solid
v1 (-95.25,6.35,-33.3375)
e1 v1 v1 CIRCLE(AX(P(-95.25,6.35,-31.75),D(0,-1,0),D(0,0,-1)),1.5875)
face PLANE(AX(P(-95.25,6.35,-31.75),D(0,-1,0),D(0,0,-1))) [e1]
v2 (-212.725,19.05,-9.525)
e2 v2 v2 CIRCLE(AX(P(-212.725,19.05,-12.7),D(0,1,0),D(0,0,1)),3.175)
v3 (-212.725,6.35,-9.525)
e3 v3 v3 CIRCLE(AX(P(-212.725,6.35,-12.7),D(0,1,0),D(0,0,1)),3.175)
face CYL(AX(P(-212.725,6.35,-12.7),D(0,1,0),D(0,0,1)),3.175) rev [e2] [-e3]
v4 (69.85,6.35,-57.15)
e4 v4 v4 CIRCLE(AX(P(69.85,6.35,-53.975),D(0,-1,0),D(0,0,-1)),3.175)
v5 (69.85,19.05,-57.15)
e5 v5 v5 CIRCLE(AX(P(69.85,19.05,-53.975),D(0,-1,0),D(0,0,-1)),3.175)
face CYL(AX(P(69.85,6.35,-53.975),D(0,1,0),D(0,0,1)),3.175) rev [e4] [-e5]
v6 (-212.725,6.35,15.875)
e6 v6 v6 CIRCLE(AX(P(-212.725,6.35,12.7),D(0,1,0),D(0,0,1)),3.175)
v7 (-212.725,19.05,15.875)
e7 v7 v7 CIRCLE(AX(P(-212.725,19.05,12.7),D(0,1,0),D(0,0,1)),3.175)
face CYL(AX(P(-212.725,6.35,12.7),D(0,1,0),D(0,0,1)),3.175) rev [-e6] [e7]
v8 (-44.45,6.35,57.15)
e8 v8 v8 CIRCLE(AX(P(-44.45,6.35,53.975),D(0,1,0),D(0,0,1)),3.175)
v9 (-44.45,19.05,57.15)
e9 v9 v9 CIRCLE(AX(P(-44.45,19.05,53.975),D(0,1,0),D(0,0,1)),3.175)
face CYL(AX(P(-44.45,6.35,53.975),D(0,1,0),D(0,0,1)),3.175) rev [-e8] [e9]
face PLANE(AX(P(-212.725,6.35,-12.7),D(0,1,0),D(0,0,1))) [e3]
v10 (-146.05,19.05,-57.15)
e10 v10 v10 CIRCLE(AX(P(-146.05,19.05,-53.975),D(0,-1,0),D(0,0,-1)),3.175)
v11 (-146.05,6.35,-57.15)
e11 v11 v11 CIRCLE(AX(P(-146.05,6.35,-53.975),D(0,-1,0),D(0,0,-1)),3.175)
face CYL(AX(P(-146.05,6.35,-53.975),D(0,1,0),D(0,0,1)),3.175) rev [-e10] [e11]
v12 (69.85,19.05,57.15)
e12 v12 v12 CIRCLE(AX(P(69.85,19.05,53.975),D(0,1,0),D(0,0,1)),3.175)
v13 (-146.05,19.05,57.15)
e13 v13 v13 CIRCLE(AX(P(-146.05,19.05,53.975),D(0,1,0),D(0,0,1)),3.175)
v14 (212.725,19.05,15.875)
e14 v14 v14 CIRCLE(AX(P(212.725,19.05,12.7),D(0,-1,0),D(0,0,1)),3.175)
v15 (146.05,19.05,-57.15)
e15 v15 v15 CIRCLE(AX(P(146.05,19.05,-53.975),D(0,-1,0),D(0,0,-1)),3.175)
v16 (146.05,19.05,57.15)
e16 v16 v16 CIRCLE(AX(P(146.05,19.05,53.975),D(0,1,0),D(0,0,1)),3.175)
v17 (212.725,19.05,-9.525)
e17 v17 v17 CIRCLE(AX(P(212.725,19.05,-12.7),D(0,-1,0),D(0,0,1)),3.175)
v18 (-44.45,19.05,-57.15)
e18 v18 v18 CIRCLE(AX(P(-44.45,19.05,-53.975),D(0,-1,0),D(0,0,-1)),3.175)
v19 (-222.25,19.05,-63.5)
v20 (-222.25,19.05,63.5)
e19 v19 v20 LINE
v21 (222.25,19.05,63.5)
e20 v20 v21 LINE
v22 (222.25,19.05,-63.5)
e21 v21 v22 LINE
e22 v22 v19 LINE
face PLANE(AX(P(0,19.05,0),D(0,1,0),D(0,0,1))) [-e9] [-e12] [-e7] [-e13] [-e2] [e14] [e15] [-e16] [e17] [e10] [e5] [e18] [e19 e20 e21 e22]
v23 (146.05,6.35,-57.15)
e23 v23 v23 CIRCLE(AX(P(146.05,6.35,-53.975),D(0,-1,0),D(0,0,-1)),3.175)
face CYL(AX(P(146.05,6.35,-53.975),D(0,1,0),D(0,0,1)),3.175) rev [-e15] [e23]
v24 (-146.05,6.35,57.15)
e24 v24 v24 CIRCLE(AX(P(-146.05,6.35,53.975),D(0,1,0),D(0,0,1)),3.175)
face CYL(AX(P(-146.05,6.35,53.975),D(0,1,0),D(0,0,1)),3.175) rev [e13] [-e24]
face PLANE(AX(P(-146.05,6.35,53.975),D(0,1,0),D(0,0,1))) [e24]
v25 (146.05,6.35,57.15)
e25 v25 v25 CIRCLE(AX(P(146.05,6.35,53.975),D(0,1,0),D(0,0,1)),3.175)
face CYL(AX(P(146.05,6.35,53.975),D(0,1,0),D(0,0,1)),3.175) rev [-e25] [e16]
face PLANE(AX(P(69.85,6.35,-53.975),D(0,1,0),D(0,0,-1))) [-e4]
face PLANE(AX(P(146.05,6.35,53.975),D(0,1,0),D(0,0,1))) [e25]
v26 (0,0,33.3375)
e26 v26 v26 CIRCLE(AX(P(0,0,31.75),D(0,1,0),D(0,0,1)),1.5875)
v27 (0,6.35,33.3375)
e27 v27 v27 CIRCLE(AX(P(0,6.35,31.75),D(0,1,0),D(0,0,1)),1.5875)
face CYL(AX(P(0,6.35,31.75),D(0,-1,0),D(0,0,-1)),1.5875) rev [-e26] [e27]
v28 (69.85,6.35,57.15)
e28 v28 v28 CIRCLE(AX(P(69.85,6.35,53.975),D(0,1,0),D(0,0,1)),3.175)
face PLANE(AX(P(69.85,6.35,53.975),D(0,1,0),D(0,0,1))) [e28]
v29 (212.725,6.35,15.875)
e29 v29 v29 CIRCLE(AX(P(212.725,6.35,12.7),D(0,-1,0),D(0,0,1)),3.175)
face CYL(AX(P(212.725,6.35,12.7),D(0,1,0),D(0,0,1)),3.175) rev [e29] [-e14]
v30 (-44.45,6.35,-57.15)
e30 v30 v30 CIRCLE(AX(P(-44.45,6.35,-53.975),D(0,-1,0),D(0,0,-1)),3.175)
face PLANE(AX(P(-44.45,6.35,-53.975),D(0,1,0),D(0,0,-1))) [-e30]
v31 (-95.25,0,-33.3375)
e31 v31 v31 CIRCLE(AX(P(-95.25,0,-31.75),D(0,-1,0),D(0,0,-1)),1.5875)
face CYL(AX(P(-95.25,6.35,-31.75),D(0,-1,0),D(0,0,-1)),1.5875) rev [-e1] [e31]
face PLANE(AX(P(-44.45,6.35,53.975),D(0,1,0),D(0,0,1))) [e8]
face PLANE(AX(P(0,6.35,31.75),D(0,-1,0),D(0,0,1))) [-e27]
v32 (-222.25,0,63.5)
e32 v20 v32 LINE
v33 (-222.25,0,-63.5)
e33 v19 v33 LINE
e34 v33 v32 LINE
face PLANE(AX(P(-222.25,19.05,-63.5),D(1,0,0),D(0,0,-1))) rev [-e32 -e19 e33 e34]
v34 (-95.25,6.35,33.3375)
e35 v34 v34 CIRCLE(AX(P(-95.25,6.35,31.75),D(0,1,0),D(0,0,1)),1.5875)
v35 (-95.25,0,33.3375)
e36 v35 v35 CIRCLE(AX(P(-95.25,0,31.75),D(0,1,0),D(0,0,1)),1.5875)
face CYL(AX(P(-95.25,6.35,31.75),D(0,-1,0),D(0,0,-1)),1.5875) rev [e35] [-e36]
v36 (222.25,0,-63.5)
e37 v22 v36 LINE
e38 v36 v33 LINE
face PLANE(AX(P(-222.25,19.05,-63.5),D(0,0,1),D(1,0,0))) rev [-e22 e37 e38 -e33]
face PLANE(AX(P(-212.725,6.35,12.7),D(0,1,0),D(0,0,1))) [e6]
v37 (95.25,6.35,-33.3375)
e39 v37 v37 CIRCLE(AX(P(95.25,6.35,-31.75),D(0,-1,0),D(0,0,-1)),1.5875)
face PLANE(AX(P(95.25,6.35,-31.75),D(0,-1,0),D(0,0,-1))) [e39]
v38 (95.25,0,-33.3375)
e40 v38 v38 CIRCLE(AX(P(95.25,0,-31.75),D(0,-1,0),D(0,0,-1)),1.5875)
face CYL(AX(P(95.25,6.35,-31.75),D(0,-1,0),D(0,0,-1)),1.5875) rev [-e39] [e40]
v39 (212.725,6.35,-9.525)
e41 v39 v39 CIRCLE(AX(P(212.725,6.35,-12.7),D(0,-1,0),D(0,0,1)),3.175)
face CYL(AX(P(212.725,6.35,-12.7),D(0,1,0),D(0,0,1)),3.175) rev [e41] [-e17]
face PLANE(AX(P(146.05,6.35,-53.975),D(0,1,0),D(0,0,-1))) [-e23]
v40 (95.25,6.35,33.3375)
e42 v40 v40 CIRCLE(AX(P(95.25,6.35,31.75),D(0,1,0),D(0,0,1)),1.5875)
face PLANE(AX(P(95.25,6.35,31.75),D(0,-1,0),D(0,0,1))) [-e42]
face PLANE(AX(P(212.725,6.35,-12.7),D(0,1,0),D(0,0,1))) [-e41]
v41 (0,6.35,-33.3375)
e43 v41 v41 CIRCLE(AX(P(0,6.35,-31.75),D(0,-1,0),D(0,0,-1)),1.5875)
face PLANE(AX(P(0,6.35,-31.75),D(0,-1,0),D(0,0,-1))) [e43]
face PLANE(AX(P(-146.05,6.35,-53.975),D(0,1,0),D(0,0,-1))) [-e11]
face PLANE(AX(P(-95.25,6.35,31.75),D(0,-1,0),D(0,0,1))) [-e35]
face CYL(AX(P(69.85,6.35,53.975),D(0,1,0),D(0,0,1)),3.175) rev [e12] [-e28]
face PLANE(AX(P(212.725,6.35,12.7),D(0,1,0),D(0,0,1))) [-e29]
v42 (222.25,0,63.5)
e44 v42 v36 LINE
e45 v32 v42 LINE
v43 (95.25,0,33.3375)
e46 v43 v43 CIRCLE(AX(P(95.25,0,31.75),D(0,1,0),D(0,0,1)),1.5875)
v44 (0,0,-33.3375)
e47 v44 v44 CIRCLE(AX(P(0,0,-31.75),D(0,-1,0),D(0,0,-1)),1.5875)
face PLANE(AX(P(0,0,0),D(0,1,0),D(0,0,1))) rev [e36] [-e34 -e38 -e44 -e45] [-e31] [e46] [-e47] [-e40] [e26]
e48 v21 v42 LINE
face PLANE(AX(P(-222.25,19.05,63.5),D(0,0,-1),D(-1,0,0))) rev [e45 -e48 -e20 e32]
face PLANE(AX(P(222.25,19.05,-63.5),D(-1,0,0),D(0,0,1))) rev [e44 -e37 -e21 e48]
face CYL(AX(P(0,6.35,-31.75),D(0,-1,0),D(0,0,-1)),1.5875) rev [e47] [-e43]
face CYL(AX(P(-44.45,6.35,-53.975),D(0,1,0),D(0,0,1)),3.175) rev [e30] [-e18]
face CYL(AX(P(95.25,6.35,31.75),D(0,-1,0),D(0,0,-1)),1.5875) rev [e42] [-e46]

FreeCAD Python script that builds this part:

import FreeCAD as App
import Part
import Sketcher
Q = App.Units.Quantity


def add_polygon(sketch, points):
    """Adds a closed chain of lines whose ends are joined by coincident constraints."""
    first, n = sketch.GeometryCount, len(points)
    for a, b in zip(points, points[1:] + points[:1]):
        sketch.addGeometry(Part.LineSegment(App.Vector(*a, 0), App.Vector(*b, 0)), False)
    for i in range(n):
        sketch.addConstraint(Sketcher.Constraint("Coincident", first + i, 2, first + (i + 1) % n, 1))

doc = App.newDocument("Part")
body = doc.addObject("PartDesign::Body", "Body")

sketch1 = doc.addObject("Sketcher::SketchObject", "Sketch")
body.addObject(sketch1)
sketch1.AttachmentSupport = (doc.XZ_Plane, [""])
sketch1.MapMode = "FlatFace"
add_polygon(sketch1, [(-222, -64), (-222, 64), (222, 64), (222, -64)])
sketch1.addConstraint([
    Sketcher.Constraint("Vertical", 0),
    Sketcher.Constraint("Horizontal", 1),
    Sketcher.Constraint("Vertical", 2),
    Sketcher.Constraint("Horizontal", 3),
    Sketcher.Constraint("Symmetric", 0, 2, 2, 2, -1, 1),
    Sketcher.Constraint("DistanceY", 0, 1, 0, 2, Q("5 in")),
    Sketcher.Constraint("DistanceX", 1, 1, 1, 2, Q("17.5 in")),
])
pad1 = doc.addObject("PartDesign::Pad", "Pad")
body.addObject(pad1)
pad1.Profile = sketch1
pad1.Length = Q("0.75 in")
pad1.Reversed = True

sketch2 = doc.addObject("Sketcher::SketchObject", "Sketch001")
body.addObject(sketch2)
sketch2.AttachmentSupport = (doc.XZ_Plane, [""])
sketch2.MapMode = "FlatFace"
sketch2.AttachmentOffset = App.Placement(App.Vector(0, 0, -0.75 * 25.4), App.Rotation())
sketch2.addGeometry([
    Part.Circle(App.Vector(-146.1, 54, 0), App.Vector(0, 0, 1), 3.2),
    Part.Circle(App.Vector(-44.5, 54, 0), App.Vector(0, 0, 1), 3.2),
    Part.Circle(App.Vector(69.8, 54, 0), App.Vector(0, 0, 1), 3.2),
    Part.Circle(App.Vector(146.1, 54, 0), App.Vector(0, 0, 1), 3.2),
], False)
sketch2.addConstraint([
    Sketcher.Constraint("Equal", 0, 1),
    Sketcher.Constraint("Equal", 1, 2),
    Sketcher.Constraint("Equal", 2, 3),
    Sketcher.Constraint("Symmetric", 0, 3, 3, 3, -2),
    Sketcher.Constraint("Horizontal", 0, 3, 1, 3),
    Sketcher.Constraint("Horizontal", 1, 3, 2, 3),
    Sketcher.Constraint("Diameter", 0, Q("0.25 in")),
    Sketcher.Constraint("DistanceX", 0, 3, 1, 3, Q("4 in")),
    Sketcher.Constraint("DistanceX", 2, 3, 3, 3, Q("3 in")),
    Sketcher.Constraint("DistanceX", 1, 3, 2, 3, Q("4.5 in")),
    Sketcher.Constraint("DistanceY", -1, 1, 0, 3, Q("2.125 in")),
])
pocket1 = doc.addObject("PartDesign::Pocket", "Pocket")
body.addObject(pocket1)
pocket1.Profile = sketch2
pocket1.Length = Q("0.5 in")
pocket1.Reversed = True
doc.recompute()

mirrored = doc.addObject("PartDesign::Mirrored", "Mirrored")
body.addObject(mirrored)
mirrored.Originals = [pocket1]
mirrored.MirrorPlane = (doc.XY_Plane, [""])
body.Tip = mirrored

sketch3 = doc.addObject("Sketcher::SketchObject", "Sketch002")
body.addObject(sketch3)
sketch3.AttachmentSupport = (doc.XZ_Plane, [""])
sketch3.MapMode = "FlatFace"
sketch3.AttachmentOffset = App.Placement(App.Vector(0, 0, -0.75 * 25.4), App.Rotation())
sketch3.addGeometry([
    Part.Circle(App.Vector(-212.7, -12.7, 0), App.Vector(0, 0, 1), 3.2),
    Part.Circle(App.Vector(-212.7, 12.7, 0), App.Vector(0, 0, 1), 3.2),
], False)
sketch3.addConstraint([
    Sketcher.Constraint("Equal", 0, 1),
    Sketcher.Constraint("Symmetric", 0, 3, 1, 3, -1),
    Sketcher.Constraint("Diameter", 0, Q("0.25 in")),
    Sketcher.Constraint("DistanceY", 0, 3, 1, 3, Q("1 in")),
    Sketcher.Constraint("DistanceX", 0, 3, -1, 1, Q("8.375 in")),
])
pocket2 = doc.addObject("PartDesign::Pocket", "Pocket001")
body.addObject(pocket2)
pocket2.Profile = sketch3
pocket2.Length = Q("0.5 in")
pocket2.Reversed = True
doc.recompute()

mirrored2 = doc.addObject("PartDesign::Mirrored", "Mirrored001")
body.addObject(mirrored2)
mirrored2.Originals = [pocket2]
mirrored2.MirrorPlane = (doc.YZ_Plane, [""])
body.Tip = mirrored2

sketch4 = doc.addObject("Sketcher::SketchObject", "Sketch003")
body.addObject(sketch4)
sketch4.AttachmentSupport = (doc.XZ_Plane, [""])
sketch4.MapMode = "FlatFace"
sketch4.addGeometry([
    Part.Circle(App.Vector(-95.2, -31.8, 0), App.Vector(0, 0, 1), 1.6),
    Part.Circle(App.Vector(0, -31.8, 0), App.Vector(0, 0, 1), 1.6),
    Part.Circle(App.Vector(95.2, -31.8, 0), App.Vector(0, 0, 1), 1.6),
], False)
sketch4.addConstraint([
    Sketcher.Constraint("Equal", 0, 1),
    Sketcher.Constraint("Equal", 1, 2),
    Sketcher.Constraint("Symmetric", 0, 3, 2, 3, -2),
    Sketcher.Constraint("PointOnObject", 1, 3, -2),
    Sketcher.Constraint("Horizontal", 0, 3, 1, 3),
    Sketcher.Constraint("Diameter", 0, Q("0.125 in")),
    Sketcher.Constraint("DistanceX", 0, 3, 2, 3, Q("7.5 in")),
    Sketcher.Constraint("DistanceY", 0, 3, -1, 1, Q("1.25 in")),
])
pocket3 = doc.addObject("PartDesign::Pocket", "Pocket002")
body.addObject(pocket3)
pocket3.Profile = sketch4
pocket3.Length = Q("0.25 in")
doc.recompute()

mirrored3 = doc.addObject("PartDesign::Mirrored", "Mirrored002")
body.addObject(mirrored3)
mirrored3.Originals = [pocket3]
mirrored3.MirrorPlane = (doc.XY_Plane, [""])
body.Tip = mirrored3

doc.recompute()
